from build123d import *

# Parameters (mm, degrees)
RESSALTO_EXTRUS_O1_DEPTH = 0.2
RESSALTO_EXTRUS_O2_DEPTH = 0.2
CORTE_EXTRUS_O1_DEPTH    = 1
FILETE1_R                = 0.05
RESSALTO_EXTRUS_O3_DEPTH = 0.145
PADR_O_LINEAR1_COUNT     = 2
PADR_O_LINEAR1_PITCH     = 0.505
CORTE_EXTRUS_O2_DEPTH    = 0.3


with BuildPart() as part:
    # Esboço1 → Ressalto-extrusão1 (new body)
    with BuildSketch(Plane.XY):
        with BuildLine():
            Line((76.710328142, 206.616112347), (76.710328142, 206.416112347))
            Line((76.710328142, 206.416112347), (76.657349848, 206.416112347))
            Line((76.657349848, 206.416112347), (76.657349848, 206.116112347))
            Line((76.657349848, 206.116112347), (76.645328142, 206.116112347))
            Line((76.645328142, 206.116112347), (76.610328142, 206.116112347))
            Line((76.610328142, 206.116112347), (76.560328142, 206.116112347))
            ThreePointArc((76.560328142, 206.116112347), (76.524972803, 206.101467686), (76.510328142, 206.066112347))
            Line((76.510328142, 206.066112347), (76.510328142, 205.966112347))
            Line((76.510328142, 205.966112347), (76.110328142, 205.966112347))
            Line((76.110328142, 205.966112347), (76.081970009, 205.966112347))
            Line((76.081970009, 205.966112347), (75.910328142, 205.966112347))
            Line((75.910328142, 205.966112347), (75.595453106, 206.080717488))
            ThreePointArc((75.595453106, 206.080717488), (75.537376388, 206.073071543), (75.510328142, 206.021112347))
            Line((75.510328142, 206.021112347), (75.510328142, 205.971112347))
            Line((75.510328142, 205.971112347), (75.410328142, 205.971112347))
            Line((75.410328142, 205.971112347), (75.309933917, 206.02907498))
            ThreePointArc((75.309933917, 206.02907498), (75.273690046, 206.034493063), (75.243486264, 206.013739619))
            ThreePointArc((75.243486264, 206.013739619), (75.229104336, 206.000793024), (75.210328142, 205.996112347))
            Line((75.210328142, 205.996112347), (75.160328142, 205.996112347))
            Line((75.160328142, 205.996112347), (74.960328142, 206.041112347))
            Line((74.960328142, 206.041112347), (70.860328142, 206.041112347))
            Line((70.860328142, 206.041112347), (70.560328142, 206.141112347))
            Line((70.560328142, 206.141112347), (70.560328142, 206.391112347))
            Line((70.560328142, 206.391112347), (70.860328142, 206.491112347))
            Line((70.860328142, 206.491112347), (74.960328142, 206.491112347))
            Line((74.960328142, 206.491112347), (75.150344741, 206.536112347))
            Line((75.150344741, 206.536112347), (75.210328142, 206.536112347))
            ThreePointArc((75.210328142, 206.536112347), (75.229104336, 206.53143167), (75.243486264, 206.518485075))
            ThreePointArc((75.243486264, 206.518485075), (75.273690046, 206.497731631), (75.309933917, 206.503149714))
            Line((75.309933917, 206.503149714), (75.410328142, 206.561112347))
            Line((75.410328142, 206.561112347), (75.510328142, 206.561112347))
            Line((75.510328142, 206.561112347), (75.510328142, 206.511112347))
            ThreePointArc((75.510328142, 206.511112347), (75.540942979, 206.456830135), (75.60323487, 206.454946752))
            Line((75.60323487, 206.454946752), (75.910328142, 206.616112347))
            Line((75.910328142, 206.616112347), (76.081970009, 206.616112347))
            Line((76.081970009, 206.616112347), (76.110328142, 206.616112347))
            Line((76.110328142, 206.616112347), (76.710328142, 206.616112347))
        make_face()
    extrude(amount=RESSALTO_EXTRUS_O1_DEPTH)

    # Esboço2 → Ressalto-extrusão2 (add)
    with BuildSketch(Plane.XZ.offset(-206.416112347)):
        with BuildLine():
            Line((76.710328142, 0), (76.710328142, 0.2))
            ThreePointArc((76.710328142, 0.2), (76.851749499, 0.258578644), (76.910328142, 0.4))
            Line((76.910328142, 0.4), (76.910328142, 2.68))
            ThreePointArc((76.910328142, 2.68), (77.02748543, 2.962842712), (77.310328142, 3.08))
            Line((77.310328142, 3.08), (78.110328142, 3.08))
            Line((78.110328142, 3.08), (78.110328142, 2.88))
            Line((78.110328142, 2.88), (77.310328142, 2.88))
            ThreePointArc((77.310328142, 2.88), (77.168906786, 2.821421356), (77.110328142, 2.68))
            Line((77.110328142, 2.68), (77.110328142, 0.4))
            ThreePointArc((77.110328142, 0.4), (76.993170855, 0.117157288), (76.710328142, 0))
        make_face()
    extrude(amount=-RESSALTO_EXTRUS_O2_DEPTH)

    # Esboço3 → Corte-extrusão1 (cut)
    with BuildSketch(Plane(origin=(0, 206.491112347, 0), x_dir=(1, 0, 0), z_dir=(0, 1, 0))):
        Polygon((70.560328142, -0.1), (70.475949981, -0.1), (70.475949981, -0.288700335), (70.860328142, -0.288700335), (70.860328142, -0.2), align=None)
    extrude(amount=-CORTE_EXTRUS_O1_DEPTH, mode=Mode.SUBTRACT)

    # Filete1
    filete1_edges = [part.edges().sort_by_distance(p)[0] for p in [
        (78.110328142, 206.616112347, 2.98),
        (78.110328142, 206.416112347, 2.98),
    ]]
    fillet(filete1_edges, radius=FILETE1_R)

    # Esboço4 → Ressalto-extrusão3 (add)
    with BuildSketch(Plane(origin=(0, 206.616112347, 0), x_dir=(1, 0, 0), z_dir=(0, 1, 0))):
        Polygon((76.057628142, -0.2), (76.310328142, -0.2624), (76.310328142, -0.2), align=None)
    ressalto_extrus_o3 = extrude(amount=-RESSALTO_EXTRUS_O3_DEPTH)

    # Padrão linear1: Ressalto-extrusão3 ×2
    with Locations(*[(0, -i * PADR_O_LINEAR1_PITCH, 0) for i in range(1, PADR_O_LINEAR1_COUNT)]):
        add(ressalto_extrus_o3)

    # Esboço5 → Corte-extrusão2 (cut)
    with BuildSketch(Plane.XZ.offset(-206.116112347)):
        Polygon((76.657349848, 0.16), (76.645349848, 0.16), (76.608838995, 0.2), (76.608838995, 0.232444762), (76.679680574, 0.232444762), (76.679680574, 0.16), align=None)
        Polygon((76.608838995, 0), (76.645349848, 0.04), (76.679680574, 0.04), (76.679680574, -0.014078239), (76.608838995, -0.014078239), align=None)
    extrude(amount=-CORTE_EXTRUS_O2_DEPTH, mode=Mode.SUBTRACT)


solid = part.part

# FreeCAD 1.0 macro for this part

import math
import FreeCAD as App
import Part
import Sketcher

V = App.Vector
Q = App.Units.Quantity


def edges_at(feature, points):
    """Names of the edges that pass closest to the given points."""
    edges = feature.Shape.Edges
    near = lambda p: min(range(len(edges)), key=lambda i: edges[i].distToShape(Part.Vertex(*p))[0])
    return sorted({f"Edge{near(p) + 1}" for p in points})


def add_polygon(sketch, points):
    """Adds a closed chain of lines whose ends are joined by coincident constraints."""
    first, n = sketch.GeometryCount, len(points)
    for a, b in zip(points, points[1:] + points[:1]):
        sketch.addGeometry(Part.LineSegment(App.Vector(*a, 0), App.Vector(*b, 0)), False)
    for i in range(n):
        sketch.addConstraint(Sketcher.Constraint("Coincident", first + i, 2, first + (i + 1) % n, 1))

doc = App.newDocument("Part")
body = doc.addObject("PartDesign::Body", "Body")

sketch1 = doc.addObject("Sketcher::SketchObject", "Sketch")
body.addObject(sketch1)
sketch1.AttachmentSupport = (doc.XY_Plane, [""])
sketch1.MapMode = "FlatFace"
sketch1.addGeometry([
    Part.LineSegment(V(76.71, 206.416, 0), V(76.71, 206.616, 0)),
    Part.LineSegment(V(76.71, 206.616, 0), V(75.91, 206.616, 0)),
    Part.LineSegment(V(75.91, 206.616, 0), V(75.603, 206.455, 0)),
    Part.ArcOfCircle(Part.Circle(V(75.574, 206.511, 0), V(0, 0, 1), 0.063), math.radians(180), math.radians(298)),
    Part.LineSegment(V(75.51, 206.511, 0), V(75.51, 206.561, 0)),
    Part.LineSegment(V(75.51, 206.561, 0), V(75.41, 206.561, 0)),
    Part.LineSegment(V(75.41, 206.561, 0), V(75.31, 206.503, 0)),
    Part.ArcOfCircle(Part.Circle(V(75.285, 206.546, 0), V(0, 0, 1), 0.05), math.radians(-146), math.radians(-60)),
    Part.ArcOfCircle(Part.Circle(V(75.21, 206.496, 0), V(0, 0, 1), 0.04), math.radians(34), math.radians(90)),
    Part.LineSegment(V(75.21, 206.536, 0), V(75.15, 206.536, 0)),
    Part.LineSegment(V(75.15, 206.536, 0), V(74.96, 206.491, 0)),
    Part.LineSegment(V(74.96, 206.491, 0), V(70.86, 206.491, 0)),
    Part.LineSegment(V(70.86, 206.491, 0), V(70.56, 206.391, 0)),
    Part.LineSegment(V(70.56, 206.391, 0), V(70.56, 206.141, 0)),
    Part.LineSegment(V(70.56, 206.141, 0), V(70.86, 206.041, 0)),
    Part.LineSegment(V(70.86, 206.041, 0), V(74.96, 206.041, 0)),
    Part.LineSegment(V(74.96, 206.041, 0), V(75.16, 205.996, 0)),
    Part.LineSegment(V(75.16, 205.996, 0), V(75.21, 205.996, 0)),
    Part.ArcOfCircle(Part.Circle(V(75.21, 206.036, 0), V(0, 0, 1), 0.04), math.radians(-90), math.radians(-34)),
    Part.ArcOfCircle(Part.Circle(V(75.285, 205.986, 0), V(0, 0, 1), 0.05), math.radians(60), math.radians(146)),
    Part.LineSegment(V(75.31, 206.029, 0), V(75.41, 205.971, 0)),
    Part.LineSegment(V(75.41, 205.971, 0), V(75.51, 205.971, 0)),
    Part.LineSegment(V(75.51, 205.971, 0), V(75.51, 206.021, 0)),
    Part.ArcOfCircle(Part.Circle(V(75.574, 206.021, 0), V(0, 0, 1), 0.063), math.radians(70), math.radians(180)),
    Part.LineSegment(V(75.595, 206.081, 0), V(75.91, 205.966, 0)),
    Part.LineSegment(V(75.91, 205.966, 0), V(76.51, 205.966, 0)),
    Part.LineSegment(V(76.51, 205.966, 0), V(76.51, 206.066, 0)),
    Part.ArcOfCircle(Part.Circle(V(76.56, 206.066, 0), V(0, 0, 1), 0.05), math.radians(90), math.radians(180)),
    Part.LineSegment(V(76.56, 206.116, 0), V(76.657, 206.116, 0)),
    Part.LineSegment(V(76.657, 206.116, 0), V(76.657, 206.416, 0)),
    Part.LineSegment(V(76.657, 206.416, 0), V(76.71, 206.416, 0)),
], False)
sketch1.addConstraint([
    Sketcher.Constraint("Coincident", 0, 2, 1, 1),
    Sketcher.Constraint("Coincident", 1, 2, 2, 1),
    Sketcher.Constraint("Tangent", 2, 2, 3, 2),
    Sketcher.Constraint("Tangent", 3, 1, 4, 1),
    Sketcher.Constraint("Coincident", 4, 2, 5, 1),
    Sketcher.Constraint("Coincident", 5, 2, 6, 1),
    Sketcher.Constraint("Tangent", 6, 2, 7, 2),
    Sketcher.Constraint("Tangent", 7, 1, 8, 1),
    Sketcher.Constraint("Tangent", 8, 2, 9, 1),
    Sketcher.Constraint("Coincident", 9, 2, 10, 1),
    Sketcher.Constraint("Coincident", 10, 2, 11, 1),
    Sketcher.Constraint("Coincident", 11, 2, 12, 1),
    Sketcher.Constraint("Coincident", 12, 2, 13, 1),
    Sketcher.Constraint("Coincident", 13, 2, 14, 1),
    Sketcher.Constraint("Coincident", 14, 2, 15, 1),
    Sketcher.Constraint("Coincident", 15, 2, 16, 1),
    Sketcher.Constraint("Coincident", 16, 2, 17, 1),
    Sketcher.Constraint("Tangent", 17, 2, 18, 1),
    Sketcher.Constraint("Tangent", 18, 2, 19, 2),
    Sketcher.Constraint("Tangent", 19, 1, 20, 1),
    Sketcher.Constraint("Coincident", 20, 2, 21, 1),
    Sketcher.Constraint("Coincident", 21, 2, 22, 1),
    Sketcher.Constraint("Tangent", 22, 2, 23, 2),
    Sketcher.Constraint("Tangent", 23, 1, 24, 1),
    Sketcher.Constraint("Coincident", 24, 2, 25, 1),
    Sketcher.Constraint("Coincident", 25, 2, 26, 1),
    Sketcher.Constraint("Tangent", 26, 2, 27, 2),
    Sketcher.Constraint("Tangent", 27, 1, 28, 1),
    Sketcher.Constraint("Coincident", 28, 2, 29, 1),
    Sketcher.Constraint("Coincident", 29, 2, 30, 1),
    Sketcher.Constraint("Coincident", 30, 2, 0, 1),
    Sketcher.Constraint("Vertical", 0),
    Sketcher.Constraint("Horizontal", 1),
    Sketcher.Constraint("Vertical", 4),
    Sketcher.Constraint("Horizontal", 5),
    Sketcher.Constraint("Horizontal", 9),
    Sketcher.Constraint("Horizontal", 11),
    Sketcher.Constraint("Vertical", 13),
    Sketcher.Constraint("Horizontal", 15),
    Sketcher.Constraint("Horizontal", 17),
    Sketcher.Constraint("Horizontal", 21),
    Sketcher.Constraint("Vertical", 22),
    Sketcher.Constraint("Horizontal", 25),
    Sketcher.Constraint("Vertical", 26),
    Sketcher.Constraint("Horizontal", 28),
    Sketcher.Constraint("Vertical", 29),
    Sketcher.Constraint("Horizontal", 30),
    Sketcher.Constraint("Equal", 8, 18),
    Sketcher.Constraint("Equal", 7, 19),
    Sketcher.Constraint("Equal", 3, 23),
    Sketcher.Constraint("Equal", 19, 27),
    Sketcher.Constraint("Vertical", 8, 3, 18, 3),
    Sketcher.Constraint("Vertical", 7, 3, 19, 3),
    Sketcher.Constraint("Vertical", 3, 3, 23, 3),
    Sketcher.Constraint("Vertical", 11, 2, 14, 2),
    Sketcher.Constraint("Vertical", 10, 2, 15, 2),
    Sketcher.Constraint("Vertical", 6, 2, 19, 1),
    Sketcher.Constraint("Vertical", 5, 2, 20, 2),
    Sketcher.Constraint("Vertical", 1, 2, 24, 2),
    Sketcher.Constraint("Equal", 17, 4),
    Sketcher.Constraint("Equal", 4, 22),
    Sketcher.Constraint("Equal", 21, 26),
    Sketcher.Constraint("Equal", 12, 14),
    Sketcher.Constraint("Angle", 6, Q("-150 deg")),
    Sketcher.Constraint("Angle", 24, Q("-20 deg")),
    Sketcher.Constraint("Radius", 7, Q("0.05 mm")),
    Sketcher.Constraint("Radius", 8, Q("0.04 mm")),
    Sketcher.Constraint("DistanceX", 1, 2, 1, 1, Q("0.8 mm")),
    Sketcher.Constraint("DistanceX", 5, 2, 5, 1, Q("0.1 mm")),
    Sketcher.Constraint("DistanceX", 11, 2, 11, 1, Q("4.1 mm")),
    Sketcher.Constraint("DistanceX", 25, 1, 25, 2, Q("0.6 mm")),
    Sketcher.Constraint("DistanceY", 0, 1, 0, 2, Q("0.2 mm")),
    Sketcher.Constraint("DistanceY", 29, 1, 29, 2, Q("0.3 mm")),
    Sketcher.Constraint("DistanceX", 17, 1, 17, 2, Q("0.05 mm")),
    Sketcher.Constraint("DistanceY", 13, 2, 13, 1, Q("0.25 mm")),
    Sketcher.Constraint("DistanceX", 8, 3, 0, 2, Q("1.5 mm")),
    Sketcher.Constraint("DistanceX", 8, 3, 3, 1, Q("0.3 mm")),
    Sketcher.Constraint("DistanceX", 12, 2, 11, 2, Q("0.3 mm")),
    Sketcher.Constraint("DistanceY", 12, 2, 11, 2, Q("0.1 mm")),
    Sketcher.Constraint("DistanceX", 15, 2, 16, 2, Q("0.2 mm")),
    Sketcher.Constraint("DistanceY", 16, 2, 8, 3, Q("0.5 mm")),
    Sketcher.Constraint("Radius", 3, Q("0.06343 mm")),
    Sketcher.Constraint("DistanceY", 23, 3, 3, 3, Q("0.49 mm")),
    Sketcher.Constraint("Distance", 16, Q("0.205 mm")),
    Sketcher.Constraint("DistanceX", 28, 1, 28, 2, Q("0.097022 mm")),
    Sketcher.Constraint("DistanceX", 9, 2, 9, 1, Q("0.059983 mm")),
    Sketcher.Constraint("DistanceX", -1, 1, 3, 3, Q("75.573759 mm")),
    Sketcher.Constraint("DistanceY", -1, 1, 7, 3, Q("206.546451 mm")),
])
pad1 = doc.addObject("PartDesign::Pad", "Pad")
body.addObject(pad1)
pad1.Profile = sketch1
pad1.Length = 0.2

sketch2 = doc.addObject("Sketcher::SketchObject", "Sketch001")
body.addObject(sketch2)
sketch2.AttachmentSupport = (doc.XZ_Plane, [""])
sketch2.MapMode = "FlatFace"
sketch2.AttachmentOffset = App.Placement(V(0, 0, -206.416112), App.Rotation())
sketch2.addGeometry([
    Part.LineSegment(V(76.71, 0.2, 0), V(76.71, 0, 0)),
    Part.ArcOfCircle(Part.Circle(V(76.71, 0.4, 0), V(0, 0, 1), 0.4), math.radians(-90), math.radians(0)),
    Part.LineSegment(V(77.11, 0.4, 0), V(77.11, 2.68, 0)),
    Part.ArcOfCircle(Part.Circle(V(77.31, 2.68, 0), V(0, 0, 1), 0.2), math.radians(90), math.radians(180)),
    Part.LineSegment(V(77.31, 2.88, 0), V(78.11, 2.88, 0)),
    Part.LineSegment(V(78.11, 2.88, 0), V(78.11, 3.08, 0)),
    Part.LineSegment(V(78.11, 3.08, 0), V(77.31, 3.08, 0)),
    Part.ArcOfCircle(Part.Circle(V(77.31, 2.68, 0), V(0, 0, 1), 0.4), math.radians(90), math.radians(180)),
    Part.LineSegment(V(76.91, 2.68, 0), V(76.91, 0.4, 0)),
    Part.ArcOfCircle(Part.Circle(V(76.71, 0.4, 0), V(0, 0, 1), 0.2), math.radians(-90), math.radians(0)),
], False)
sketch2.addConstraint([
    Sketcher.Constraint("Coincident", 0, 2, 1, 1),
    Sketcher.Constraint("Tangent", 1, 2, 2, 1),
    Sketcher.Constraint("Tangent", 2, 2, 3, 2),
    Sketcher.Constraint("Tangent", 3, 1, 4, 1),
    Sketcher.Constraint("Coincident", 4, 2, 5, 1),
    Sketcher.Constraint("Coincident", 5, 2, 6, 1),
    Sketcher.Constraint("Tangent", 6, 2, 7, 1),
    Sketcher.Constraint("Tangent", 7, 2, 8, 1),
    Sketcher.Constraint("Tangent", 8, 2, 9, 2),
    Sketcher.Constraint("Coincident", 9, 1, 0, 1),
    Sketcher.Constraint("Vertical", 0),
    Sketcher.Constraint("Vertical", 2),
    Sketcher.Constraint("Horizontal", 4),
    Sketcher.Constraint("Vertical", 5),
    Sketcher.Constraint("Horizontal", 6),
    Sketcher.Constraint("Vertical", 8),
    Sketcher.Constraint("Coincident", 7, 3, 3, 3),
    Sketcher.Constraint("Coincident", 9, 3, 1, 3),
    Sketcher.Constraint("Equal", 1, 7),
    Sketcher.Constraint("PointOnObject", 0, 2, -1),
    Sketcher.Constraint("Vertical", 9, 3, 0, 2),
    Sketcher.Constraint("Radius", 1, Q("0.4 mm")),
    Sketcher.Constraint("Radius", 3, Q("0.2 mm")),
    Sketcher.Constraint("DistanceX", 4, 1, 4, 2, Q("0.8 mm")),
    Sketcher.Constraint("DistanceY", 2, 1, 2, 2, Q("2.28 mm")),
    Sketcher.Constraint("DistanceX", -1, 1, 1, 3, Q("76.710328 mm")),
])
pad2 = doc.addObject("PartDesign::Pad", "Pad001")
body.addObject(pad2)
pad2.Profile = sketch2
pad2.Length = 0.2
pad2.Reversed = True

sketch3 = doc.addObject("Sketcher::SketchObject", "Sketch002")
body.addObject(sketch3)
sketch3.AttachmentSupport = (doc.XZ_Plane, [""])
sketch3.MapMode = "FlatFace"
sketch3.AttachmentOffset = App.Placement(V(0, 0, -206.491112), App.Rotation())
add_polygon(sketch3, [(70.56, 0.1), (70.48, 0.1), (70.48, 0.29), (70.86, 0.29), (70.86, 0.2)])
sketch3.addConstraint([
    Sketcher.Constraint("Horizontal", 0),
    Sketcher.Constraint("Vertical", 1),
    Sketcher.Constraint("Horizontal", 2),
    Sketcher.Constraint("Vertical", 3),
    Sketcher.Constraint("DistanceY", -1, 1, 0, 2, Q("0.1 mm")),
    Sketcher.Constraint("DistanceY", -1, 1, 3, 2, Q("0.2 mm")),
    Sketcher.Constraint("DistanceX", 4, 2, 3, 2, Q("0.3 mm")),
    Sketcher.Constraint("DistanceY", 1, 1, 1, 2, Q("0.1887 mm")),
    Sketcher.Constraint("DistanceX", 0, 2, 0, 1, Q("0.084378 mm")),
    Sketcher.Constraint("DistanceX", -1, 1, 0, 2, Q("70.47595 mm")),
])
pocket1 = doc.addObject("PartDesign::Pocket", "Pocket")
body.addObject(pocket1)
pocket1.Profile = sketch3
pocket1.Length = 1
pocket1.Reversed = True
doc.recompute()

fillet = doc.addObject("PartDesign::Fillet", "Fillet")
body.addObject(fillet)
fillet.Base = (pocket1, edges_at(pocket1, [(78.11, 206.616, 2.98), (78.11, 206.416, 2.98)]))
fillet.Radius = 0.05

sketch4 = doc.addObject("Sketcher::SketchObject", "Sketch003")
body.addObject(sketch4)
sketch4.AttachmentSupport = (doc.XZ_Plane, [""])
sketch4.MapMode = "FlatFace"
sketch4.AttachmentOffset = App.Placement(V(0, 0, -206.616112), App.Rotation())
add_polygon(sketch4, [(76.06, 0.2), (76.31, 0.26), (76.31, 0.2)])
sketch4.addConstraint([
    Sketcher.Constraint("Vertical", 1),
    Sketcher.Constraint("Horizontal", 2),
    Sketcher.Constraint("DistanceY", -1, 1, 1, 2, Q("0.2 mm")),
    Sketcher.Constraint("DistanceX", 2, 2, 2, 1, Q("0.2527 mm")),
    Sketcher.Constraint("DistanceY", 1, 2, 1, 1, Q("0.0624 mm")),
    Sketcher.Constraint("DistanceX", -1, 1, 0, 2, Q("76.310328 mm")),
])
pad3 = doc.addObject("PartDesign::Pad", "Pad002")
body.addObject(pad3)
pad3.Profile = sketch4
pad3.Length = 0.145
doc.recompute()

linearpattern = doc.addObject("PartDesign::LinearPattern", "LinearPattern")
body.addObject(linearpattern)
linearpattern.Originals = [pad3]
linearpattern.Direction = (doc.Y_Axis, [""])
linearpattern.Mode = "offset"
linearpattern.Offset = 0.505
linearpattern.Occurrences = 2
linearpattern.Reversed = True
body.Tip = linearpattern

sketch5 = doc.addObject("Sketcher::SketchObject", "Sketch004")
body.addObject(sketch5)
sketch5.AttachmentSupport = (doc.XZ_Plane, [""])
sketch5.MapMode = "FlatFace"
sketch5.AttachmentOffset = App.Placement(V(0, 0, -206.116112), App.Rotation())
add_polygon(sketch5, [(76.645, 0.16), (76.68, 0.16), (76.68, 0.232), (76.609, 0.232), (76.609, 0.2)])
add_polygon(sketch5, [(76.645, 0.04), (76.609, 0), (76.609, -0.014), (76.68, -0.014), (76.68, 0.04)])
sketch5.addConstraint([
    Sketcher.Constraint("Horizontal", 0),
    Sketcher.Constraint("Vertical", 1),
    Sketcher.Constraint("Horizontal", 2),
    Sketcher.Constraint("Vertical", 3),
    Sketcher.Constraint("Vertical", 6),
    Sketcher.Constraint("Horizontal", 7),
    Sketcher.Constraint("Vertical", 8),
    Sketcher.Constraint("Horizontal", 9),
    Sketcher.Constraint("PointOnObject", 5, 2, -1),
    Sketcher.Constraint("Vertical", 3, 2, 5, 2),
    Sketcher.Constraint("Vertical", 1, 2, 7, 2),
    Sketcher.Constraint("Vertical", 4, 2, 9, 2),
    Sketcher.Constraint("Equal", 4, 5),
    Sketcher.Constraint("DistanceY", -1, 1, 3, 2, Q("0.2 mm")),
    Sketcher.Constraint("DistanceY", -1, 1, 0, 2, Q("0.16 mm")),
    Sketcher.Constraint("DistanceX", 0, 1, 0, 2, Q("0.034331 mm")),
    Sketcher.Constraint("DistanceX", 2, 2, 2, 1, Q("0.070842 mm")),
    Sketcher.Constraint("DistanceY", 6, 2, 6, 1, Q("0.014078 mm")),
    Sketcher.Constraint("DistanceY", 1, 1, 1, 2, Q("0.072445 mm")),
    Sketcher.Constraint("DistanceX", -1, 1, 0, 2, Q("76.679681 mm")),
])
pocket2 = doc.addObject("PartDesign::Pocket", "Pocket001")
body.addObject(pocket2)
pocket2.Profile = sketch5
pocket2.Length = 0.3

doc.recompute()
